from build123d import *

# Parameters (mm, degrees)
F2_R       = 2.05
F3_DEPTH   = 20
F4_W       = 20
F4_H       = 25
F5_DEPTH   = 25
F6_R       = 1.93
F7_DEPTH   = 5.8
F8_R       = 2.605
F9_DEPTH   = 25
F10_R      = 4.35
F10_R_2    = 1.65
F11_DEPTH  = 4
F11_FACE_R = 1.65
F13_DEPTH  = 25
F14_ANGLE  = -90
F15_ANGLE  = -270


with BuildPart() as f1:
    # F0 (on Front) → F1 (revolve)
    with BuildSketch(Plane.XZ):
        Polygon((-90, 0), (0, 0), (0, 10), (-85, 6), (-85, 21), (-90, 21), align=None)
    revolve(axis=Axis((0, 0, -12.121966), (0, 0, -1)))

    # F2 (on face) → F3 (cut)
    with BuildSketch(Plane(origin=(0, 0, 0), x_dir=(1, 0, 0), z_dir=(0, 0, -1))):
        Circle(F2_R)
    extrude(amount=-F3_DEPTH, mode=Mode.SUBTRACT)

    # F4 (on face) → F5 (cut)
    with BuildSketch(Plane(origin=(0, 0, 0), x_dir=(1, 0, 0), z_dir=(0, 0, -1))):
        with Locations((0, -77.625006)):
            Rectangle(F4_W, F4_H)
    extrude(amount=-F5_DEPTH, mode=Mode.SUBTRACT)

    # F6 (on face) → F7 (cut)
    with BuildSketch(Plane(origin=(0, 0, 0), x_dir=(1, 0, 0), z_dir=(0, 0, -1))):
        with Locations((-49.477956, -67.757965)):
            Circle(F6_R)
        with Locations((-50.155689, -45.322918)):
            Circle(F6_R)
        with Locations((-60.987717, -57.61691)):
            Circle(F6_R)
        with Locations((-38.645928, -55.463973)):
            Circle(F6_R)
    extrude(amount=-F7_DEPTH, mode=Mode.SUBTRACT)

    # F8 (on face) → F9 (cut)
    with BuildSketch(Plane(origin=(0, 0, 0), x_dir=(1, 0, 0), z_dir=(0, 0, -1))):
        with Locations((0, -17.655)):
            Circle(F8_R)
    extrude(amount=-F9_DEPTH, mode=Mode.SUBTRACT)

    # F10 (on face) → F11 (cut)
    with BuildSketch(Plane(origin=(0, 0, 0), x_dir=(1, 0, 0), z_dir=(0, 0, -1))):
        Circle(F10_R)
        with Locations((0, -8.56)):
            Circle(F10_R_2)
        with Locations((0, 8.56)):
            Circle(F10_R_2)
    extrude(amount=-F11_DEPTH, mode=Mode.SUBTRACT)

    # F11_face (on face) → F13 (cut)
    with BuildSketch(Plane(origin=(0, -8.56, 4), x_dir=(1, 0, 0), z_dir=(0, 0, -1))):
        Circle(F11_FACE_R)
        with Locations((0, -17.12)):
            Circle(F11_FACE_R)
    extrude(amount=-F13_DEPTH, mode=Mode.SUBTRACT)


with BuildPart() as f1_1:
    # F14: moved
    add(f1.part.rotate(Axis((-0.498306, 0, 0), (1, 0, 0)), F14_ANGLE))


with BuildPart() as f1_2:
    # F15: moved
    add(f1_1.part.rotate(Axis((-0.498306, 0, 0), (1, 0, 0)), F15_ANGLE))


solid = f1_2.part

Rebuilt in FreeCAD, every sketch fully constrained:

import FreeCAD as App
import Part
import Sketcher
from FreeCAD import Vector


def add_polygon(sketch, points):
    """Adds a closed chain of lines whose ends are joined by coincident constraints."""
    first, n = sketch.GeometryCount, len(points)
    for a, b in zip(points, points[1:] + points[:1]):
        sketch.addGeometry(Part.LineSegment(App.Vector(*a, 0), App.Vector(*b, 0)), False)
    for i in range(n):
        sketch.addConstraint(Sketcher.Constraint("Coincident", first + i, 2, first + (i + 1) % n, 1))

doc = App.newDocument("Part")
params = doc.addObject("Spreadsheet::Sheet", "Params")
for row, (alias, value) in enumerate([
    ("sketch1_width", "90 mm"),
    ("sketch1_width2", "5 mm"),
    ("sketch1_height", "10 mm"),
    ("sketch1_height2", "15 mm"),
    ("sketch1_height3", "21 mm"),
    ("revolution_angle", "360 deg"),
    ("sketch2_diameter", "4.1 mm"),
    ("pocket1_length", "20 mm"),
    ("sketch3_width", "20 mm"),
    ("sketch3_height", "25 mm"),
    ("pocket2_length", "25 mm"),
    ("sketch4_diameter", "3.86 mm"),
    ("pocket3_length", "5.8 mm"),
    ("sketch5_diameter", "5.21 mm"),
    ("pocket4_length", "25 mm"),
    ("sketch6_diameter", "8.7 mm"),
    ("sketch6_diameter2", "3.3 mm"),
    ("pocket5_length", "4 mm"),
    ("sketch7_diameter", "3.3 mm"),
    ("pocket6_length", "25 mm"),
], start=1):
    params.set(f"A{row}", alias)
    params.set(f"B{row}", "=" + value)
    params.setAlias(f"B{row}", alias)

body = doc.addObject("PartDesign::Body", "Body")

sketch1 = body.newObject("Sketcher::SketchObject", "Sketch")
sketch1.AttachmentSupport = (doc.getObject("XZ_Plane"), [""])
sketch1.MapMode = "FlatFace"
add_polygon(sketch1, [(-90, 0), (0, 0), (0, 10), (-85, 6), (-85, 21), (-90, 21)])
sketch1.addConstraint([
    Sketcher.Constraint("Horizontal", 0),
    Sketcher.Constraint("Vertical", 1),
    Sketcher.Constraint("Vertical", 3),
    Sketcher.Constraint("Horizontal", 4),
    Sketcher.Constraint("Vertical", 5),
    Sketcher.Constraint("Coincident", 0, 2, -1, 1),
    Sketcher.Constraint("DistanceX", 0, 1, 0, 2, 90.0),
    Sketcher.Constraint("DistanceX", 4, 2, 4, 1, 5.0),
    Sketcher.Constraint("DistanceY", 1, 1, 1, 2, 10.0),
    Sketcher.Constraint("DistanceY", 3, 1, 3, 2, 15.0),
    Sketcher.Constraint("DistanceY", 5, 2, 5, 1, 21.0),
])
sketch1.setExpression("Constraints[12]", "Params.sketch1_width")
sketch1.setExpression("Constraints[13]", "Params.sketch1_width2")
sketch1.setExpression("Constraints[14]", "Params.sketch1_height")
sketch1.setExpression("Constraints[15]", "Params.sketch1_height2")
sketch1.setExpression("Constraints[16]", "Params.sketch1_height3")
revolution = body.newObject("PartDesign::Revolution", "Revolution")
revolution.Profile = sketch1
revolution.ReferenceAxis = (sketch1, ["V_Axis"])
revolution.setExpression("Angle", "Params.revolution_angle")

sketch2 = body.newObject("Sketcher::SketchObject", "Sketch001")
sketch2.AttachmentSupport = (doc.getObject("XY_Plane"), [""])
sketch2.MapMode = "FlatFace"
sketch2.addGeometry(Part.Circle(Vector(0, 0, 0), Vector(0, 0, 1), 2), False)
sketch2.addConstraint([
    Sketcher.Constraint("Coincident", 0, 3, -1, 1),
    Sketcher.Constraint("Diameter", 0, 4.1),
])
sketch2.setExpression("Constraints[1]", "Params.sketch2_diameter")
pocket1 = body.newObject("PartDesign::Pocket", "Pocket")
pocket1.Profile = sketch2
pocket1.setExpression("Length", "Params.pocket1_length")
pocket1.Reversed = True

sketch3 = body.newObject("Sketcher::SketchObject", "Sketch002")
sketch3.AttachmentSupport = (doc.getObject("XY_Plane"), [""])
sketch3.MapMode = "FlatFace"
add_polygon(sketch3, [(-10, 65), (-10, 90), (10, 90), (10, 65)])
sketch3.addConstraint([
    Sketcher.Constraint("Vertical", 0),
    Sketcher.Constraint("Horizontal", 1),
    Sketcher.Constraint("Vertical", 2),
    Sketcher.Constraint("Horizontal", 3),
    Sketcher.Constraint("DistanceX", 1, 1, 1, 2, 20.0),
    Sketcher.Constraint("DistanceY", 0, 1, 0, 2, 25.0),
    Sketcher.Constraint("DistanceX", 0, 2, -1, 1, 10.0),
    Sketcher.Constraint("DistanceY", -1, 1, 0, 2, 90.125006),
])
sketch3.setExpression("Constraints[8]", "Params.sketch3_width")
sketch3.setExpression("Constraints[9]", "Params.sketch3_height")
pocket2 = body.newObject("PartDesign::Pocket", "Pocket001")
pocket2.Profile = sketch3
pocket2.setExpression("Length", "Params.pocket2_length")
pocket2.Reversed = True

sketch4 = body.newObject("Sketcher::SketchObject", "Sketch003")
sketch4.AttachmentSupport = (doc.getObject("XY_Plane"), [""])
sketch4.MapMode = "FlatFace"
sketch4.addGeometry([
    Part.Circle(Vector(-49.5, 67.8, 0), Vector(0, 0, 1), 1.9),
    Part.Circle(Vector(-50.2, 45.3, 0), Vector(0, 0, 1), 1.9),
    Part.Circle(Vector(-61, 57.6, 0), Vector(0, 0, 1), 1.9),
    Part.Circle(Vector(-38.6, 55.5, 0), Vector(0, 0, 1), 1.9),
], False)
sketch4.addConstraint([
    Sketcher.Constraint("Equal", 0, 1),
    Sketcher.Constraint("Equal", 1, 2),
    Sketcher.Constraint("Equal", 2, 3),
    Sketcher.Constraint("Diameter", 0, 3.86),
    Sketcher.Constraint("DistanceX", 1, 3, -1, 1, 50.155689),
    Sketcher.Constraint("DistanceY", -1, 1, 2, 3, 57.61691),
    Sketcher.Constraint("DistanceX", 2, 3, 0, 3, 11.509761),
    Sketcher.Constraint("DistanceX", 2, 3, 1, 3, 10.832028),
    Sketcher.Constraint("DistanceY", 1, 3, 2, 3, 12.293992),
    Sketcher.Constraint("DistanceX", 1, 3, 3, 3, 11.509761),
    Sketcher.Constraint("DistanceY", 3, 3, 0, 3, 12.293992),
    Sketcher.Constraint("DistanceY", -1, 1, 0, 3, 67.757965),
])
sketch4.setExpression("Constraints[3]", "Params.sketch4_diameter")
pocket3 = body.newObject("PartDesign::Pocket", "Pocket002")
pocket3.Profile = sketch4
pocket3.setExpression("Length", "Params.pocket3_length")
pocket3.Reversed = True

sketch5 = body.newObject("Sketcher::SketchObject", "Sketch004")
sketch5.AttachmentSupport = (doc.getObject("XY_Plane"), [""])
sketch5.MapMode = "FlatFace"
sketch5.addGeometry(Part.Circle(Vector(0, 17.7, 0), Vector(0, 0, 1), 2.6), False)
sketch5.addConstraint([
    Sketcher.Constraint("PointOnObject", 0, 3, -2),
    Sketcher.Constraint("Diameter", 0, 5.21),
    Sketcher.Constraint("DistanceY", -1, 1, 0, 3, 17.655),
])
sketch5.setExpression("Constraints[1]", "Params.sketch5_diameter")
pocket4 = body.newObject("PartDesign::Pocket", "Pocket003")
pocket4.Profile = sketch5
pocket4.setExpression("Length", "Params.pocket4_length")
pocket4.Reversed = True

sketch6 = body.newObject("Sketcher::SketchObject", "Sketch005")
sketch6.AttachmentSupport = (doc.getObject("XY_Plane"), [""])
sketch6.MapMode = "FlatFace"
sketch6.addGeometry([
    Part.Circle(Vector(0, 0, 0), Vector(0, 0, 1), 4.3),
    Part.Circle(Vector(0, 8.6, 0), Vector(0, 0, 1), 1.6),
    Part.Circle(Vector(0, -8.6, 0), Vector(0, 0, 1), 1.6),
], False)
sketch6.addConstraint([
    Sketcher.Constraint("Coincident", 0, 3, -1, 1),
    Sketcher.Constraint("Equal", 1, 2),
    Sketcher.Constraint("Symmetric", 1, 3, 2, 3, -1, 1),
    Sketcher.Constraint("PointOnObject", 1, 3, -2),
    Sketcher.Constraint("Diameter", 0, 8.7),
    Sketcher.Constraint("Diameter", 1, 3.3),
    Sketcher.Constraint("DistanceY", -1, 1, 1, 3, 8.56),
])
sketch6.setExpression("Constraints[4]", "Params.sketch6_diameter")
sketch6.setExpression("Constraints[5]", "Params.sketch6_diameter2")
pocket5 = body.newObject("PartDesign::Pocket", "Pocket004")
pocket5.Profile = sketch6
pocket5.setExpression("Length", "Params.pocket5_length")
pocket5.Reversed = True

sketch7 = body.newObject("Sketcher::SketchObject", "Sketch006")
sketch7.AttachmentSupport = (doc.getObject("XY_Plane"), [""])
sketch7.MapMode = "FlatFace"
sketch7.AttachmentOffset = App.Placement(Vector(0, 0, 4), App.Rotation())
sketch7.addGeometry([
    Part.Circle(Vector(0, -8.6, 0), Vector(0, 0, 1), 1.6),
    Part.Circle(Vector(0, 8.6, 0), Vector(0, 0, 1), 1.6),
], False)
sketch7.addConstraint([
    Sketcher.Constraint("Equal", 0, 1),
    Sketcher.Constraint("Symmetric", 0, 3, 1, 3, -1, 1),
    Sketcher.Constraint("PointOnObject", 0, 3, -2),
    Sketcher.Constraint("Diameter", 0, 3.3),
    Sketcher.Constraint("DistanceY", 0, 3, -1, 1, 8.56),
])
sketch7.setExpression("Constraints[3]", "Params.sketch7_diameter")
pocket6 = body.newObject("PartDesign::Pocket", "Pocket005")
pocket6.Profile = sketch7
pocket6.setExpression("Length", "Params.pocket6_length")
pocket6.Reversed = True
body2 = doc.addObject("PartDesign::Body", "Body001")
doc.recompute()

body.Placement = App.Placement(Vector(0, 0, 0), App.Rotation(Vector(1, 0, 0), 270))
boolean = body2.newObject("PartDesign::Boolean", "Boolean")
boolean.Type = "Fuse"
boolean.addObjects([body])
body3 = doc.addObject("PartDesign::Body", "Body002")
doc.recompute()

body2.Placement = App.Placement(Vector(0, 0, 0), App.Rotation(Vector(1, 0, 0), 90))
boolean2 = body3.newObject("PartDesign::Boolean", "Boolean001")
boolean2.Type = "Fuse"
boolean2.addObjects([body2])

doc.recompute()
